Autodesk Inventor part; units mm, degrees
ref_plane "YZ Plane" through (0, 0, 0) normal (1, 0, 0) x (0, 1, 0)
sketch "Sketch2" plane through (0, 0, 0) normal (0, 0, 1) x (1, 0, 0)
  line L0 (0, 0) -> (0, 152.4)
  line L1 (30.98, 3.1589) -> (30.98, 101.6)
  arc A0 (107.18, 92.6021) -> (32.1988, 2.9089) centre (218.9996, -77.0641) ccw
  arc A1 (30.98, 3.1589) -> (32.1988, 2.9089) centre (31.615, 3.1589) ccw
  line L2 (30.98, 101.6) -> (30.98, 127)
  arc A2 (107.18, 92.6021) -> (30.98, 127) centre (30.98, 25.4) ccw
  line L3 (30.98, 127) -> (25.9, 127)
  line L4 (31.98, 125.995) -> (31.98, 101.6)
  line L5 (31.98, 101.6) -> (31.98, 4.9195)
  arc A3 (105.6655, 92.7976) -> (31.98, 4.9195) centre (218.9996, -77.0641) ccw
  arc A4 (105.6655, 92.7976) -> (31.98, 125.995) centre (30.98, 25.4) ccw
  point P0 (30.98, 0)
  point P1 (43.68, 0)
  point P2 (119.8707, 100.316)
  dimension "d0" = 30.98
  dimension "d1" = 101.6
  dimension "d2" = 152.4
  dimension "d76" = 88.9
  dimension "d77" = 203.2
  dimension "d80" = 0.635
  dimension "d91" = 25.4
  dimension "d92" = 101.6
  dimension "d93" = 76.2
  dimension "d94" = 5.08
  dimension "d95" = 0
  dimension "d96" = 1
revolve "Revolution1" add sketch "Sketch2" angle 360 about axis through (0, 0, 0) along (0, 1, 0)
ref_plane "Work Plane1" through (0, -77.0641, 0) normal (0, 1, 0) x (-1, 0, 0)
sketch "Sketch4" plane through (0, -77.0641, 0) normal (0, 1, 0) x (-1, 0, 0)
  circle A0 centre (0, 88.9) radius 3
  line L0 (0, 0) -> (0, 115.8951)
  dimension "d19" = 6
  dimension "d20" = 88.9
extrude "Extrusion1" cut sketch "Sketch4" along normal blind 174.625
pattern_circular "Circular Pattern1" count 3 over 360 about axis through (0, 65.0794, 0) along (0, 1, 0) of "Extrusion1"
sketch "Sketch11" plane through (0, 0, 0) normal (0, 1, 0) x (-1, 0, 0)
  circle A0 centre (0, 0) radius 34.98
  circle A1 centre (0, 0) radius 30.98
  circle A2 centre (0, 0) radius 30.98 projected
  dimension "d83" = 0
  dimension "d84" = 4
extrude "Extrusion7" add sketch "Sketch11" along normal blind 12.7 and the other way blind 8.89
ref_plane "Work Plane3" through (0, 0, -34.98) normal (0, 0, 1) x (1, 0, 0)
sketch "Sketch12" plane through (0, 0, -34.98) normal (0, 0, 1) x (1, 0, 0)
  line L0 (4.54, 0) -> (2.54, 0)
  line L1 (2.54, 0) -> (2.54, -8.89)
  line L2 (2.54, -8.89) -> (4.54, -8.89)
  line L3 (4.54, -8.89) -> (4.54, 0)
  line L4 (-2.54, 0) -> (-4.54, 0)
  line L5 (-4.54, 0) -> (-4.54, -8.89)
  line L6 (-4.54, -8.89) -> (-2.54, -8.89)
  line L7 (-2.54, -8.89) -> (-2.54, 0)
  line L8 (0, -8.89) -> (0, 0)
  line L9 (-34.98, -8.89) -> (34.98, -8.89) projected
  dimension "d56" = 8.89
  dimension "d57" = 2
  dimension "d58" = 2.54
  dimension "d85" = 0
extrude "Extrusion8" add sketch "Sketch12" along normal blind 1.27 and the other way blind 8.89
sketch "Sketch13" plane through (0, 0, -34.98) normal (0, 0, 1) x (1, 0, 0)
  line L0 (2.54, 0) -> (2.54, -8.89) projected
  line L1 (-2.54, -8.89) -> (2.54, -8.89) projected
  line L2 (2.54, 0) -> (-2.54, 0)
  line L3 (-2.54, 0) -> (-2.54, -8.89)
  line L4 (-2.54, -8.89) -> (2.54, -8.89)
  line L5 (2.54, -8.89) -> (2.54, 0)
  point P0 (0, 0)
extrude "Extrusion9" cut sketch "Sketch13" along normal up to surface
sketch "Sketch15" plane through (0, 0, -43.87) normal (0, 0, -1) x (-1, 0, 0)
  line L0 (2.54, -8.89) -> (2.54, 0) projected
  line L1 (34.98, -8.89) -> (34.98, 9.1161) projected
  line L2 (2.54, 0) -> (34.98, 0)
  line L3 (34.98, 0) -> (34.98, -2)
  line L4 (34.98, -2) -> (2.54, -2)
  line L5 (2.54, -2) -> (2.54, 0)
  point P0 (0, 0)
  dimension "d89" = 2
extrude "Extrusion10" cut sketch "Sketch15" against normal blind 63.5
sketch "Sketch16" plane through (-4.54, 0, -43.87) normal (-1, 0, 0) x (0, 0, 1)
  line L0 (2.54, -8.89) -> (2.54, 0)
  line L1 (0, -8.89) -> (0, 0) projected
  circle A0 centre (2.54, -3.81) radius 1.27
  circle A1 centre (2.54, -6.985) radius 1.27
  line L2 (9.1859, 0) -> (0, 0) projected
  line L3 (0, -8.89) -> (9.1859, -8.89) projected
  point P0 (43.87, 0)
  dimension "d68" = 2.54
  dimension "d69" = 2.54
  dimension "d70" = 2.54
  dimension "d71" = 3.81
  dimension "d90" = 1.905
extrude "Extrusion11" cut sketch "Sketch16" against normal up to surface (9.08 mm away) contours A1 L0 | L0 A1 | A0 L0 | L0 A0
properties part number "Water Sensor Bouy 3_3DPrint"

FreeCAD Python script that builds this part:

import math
import FreeCAD as App
import Part
import Sketcher
Q = App.Units.Quantity

doc = App.newDocument("Part")
body = doc.addObject("PartDesign::Body", "Body")

sketch1 = doc.addObject("Sketcher::SketchObject", "Sketch")
body.addObject(sketch1)
sketch1.AttachmentSupport = (doc.XY_Plane, [""])
sketch1.MapMode = "FlatFace"
sketch1.addGeometry([
    Part.LineSegment(App.Vector(30.98, 127, 0), App.Vector(30.98, 3.1589, 0)),
    Part.ArcOfCircle(Part.Circle(App.Vector(31.615, 3.1589, 0), App.Vector(0, 0, 1), 0.635), math.radians(180), math.radians(336.817994)),
    Part.ArcOfCircle(Part.Circle(App.Vector(218.9996, -77.0641, 0), App.Vector(0, 0, 1), 203.200006), math.radians(123.387136), math.radians(156.823306)),
    Part.ArcOfCircle(Part.Circle(App.Vector(30.98, 25.4, 0), App.Vector(0, 0, 1), 101.600011), math.radians(41.409629), math.radians(90)),
    Part.LineSegment(App.Vector(31.98, 4.9195, 0), App.Vector(31.98, 125.995, 0)),
    Part.ArcOfCircle(Part.Circle(App.Vector(30.98, 25.4, 0), App.Vector(0, 0, 1), 100.600002), math.radians(42.063688), math.radians(89.43045)),
    Part.ArcOfCircle(Part.Circle(App.Vector(218.9996, -77.0641, 0), App.Vector(0, 0, 1), 204.19994), math.radians(123.711772), math.radians(156.328843)),
], False)
sketch1.addConstraint([
    Sketcher.Constraint("Tangent", 0, 2, 1, 1),
    Sketcher.Constraint("Tangent", 1, 2, 2, 2),
    Sketcher.Constraint("Coincident", 2, 1, 3, 1),
    Sketcher.Constraint("Coincident", 3, 2, 0, 1),
    Sketcher.Constraint("Coincident", 4, 2, 5, 2),
    Sketcher.Constraint("Coincident", 5, 1, 6, 1),
    Sketcher.Constraint("Coincident", 6, 2, 4, 1),
    Sketcher.Constraint("Vertical", 0),
    Sketcher.Constraint("Vertical", 4),
    Sketcher.Constraint("Coincident", 5, 3, 3, 3),
    Sketcher.Constraint("Coincident", 6, 3, 2, 3),
    Sketcher.Constraint("Vertical", 5, 3, 0, 2),
    Sketcher.Constraint("Radius", 2, Q("8 in")),
    Sketcher.Constraint("Radius", 3, Q("4 in")),
    Sketcher.Constraint("DistanceY", -1, 1, 3, 3, Q("1 in")),
    Sketcher.Constraint("Radius", 1, Q("0.025 in")),
    Sketcher.Constraint("DistanceX", -1, 1, 3, 3, Q("30.98 mm")),
    Sketcher.Constraint("Radius", 5, Q("100.6 mm")),
    Sketcher.Constraint("Radius", 6, Q("204.2 mm")),
    Sketcher.Constraint("DistanceX", 3, 2, 4, 2, Q("1 mm")),
    Sketcher.Constraint("DistanceX", 4, 2, 5, 1, Q("2.901 in")),
    Sketcher.Constraint("DistanceY", 0, 2, 0, 1, Q("123.841 mm")),
])
revolution = doc.addObject("PartDesign::Revolution", "Revolution")
body.addObject(revolution)
revolution.Profile = sketch1
revolution.ReferenceAxis = (sketch1, ["V_Axis"])
revolution.Angle = 360

sketch2 = doc.addObject("Sketcher::SketchObject", "Sketch001")
body.addObject(sketch2)
sketch2.AttachmentSupport = (doc.XZ_Plane, [""])
sketch2.MapMode = "FlatFace"
sketch2.AttachmentOffset = App.Placement(App.Vector(0, 0, 77.0641), App.Rotation())
sketch2.addGeometry(Part.Circle(App.Vector(0, 88.9, 0), App.Vector(0, 0, 1), 3), False)
sketch2.addConstraint([
    Sketcher.Constraint("PointOnObject", 0, 3, -2),
    Sketcher.Constraint("DistanceY", -1, 1, 0, 3, Q("3.5 in")),
    Sketcher.Constraint("Diameter", 0, Q("6 mm")),
])
pocket1 = doc.addObject("PartDesign::Pocket", "Pocket")
body.addObject(pocket1)
pocket1.Profile = sketch2
pocket1.Length = Q("6.875 in")
doc.recompute()

polarpattern = doc.addObject("PartDesign::PolarPattern", "PolarPattern")
body.addObject(polarpattern)
polarpattern.Originals = [pocket1]
polarpattern.Axis = (doc.Y_Axis, [""])
polarpattern.Angle = 360
polarpattern.Occurrences = 3
body.Tip = polarpattern

sketch3 = doc.addObject("Sketcher::SketchObject", "Sketch002")
body.addObject(sketch3)
sketch3.AttachmentSupport = (doc.XZ_Plane, [""])
sketch3.MapMode = "FlatFace"
sketch3.addGeometry([
    Part.Circle(App.Vector(0, 0, 0), App.Vector(0, 0, 1), 34.98),
    Part.Circle(App.Vector(0, 0, 0), App.Vector(0, 0, 1), 30.98),
], False)
sketch3.addConstraint([
    Sketcher.Constraint("Coincident", 0, 3, -1, 1),
    Sketcher.Constraint("Coincident", 1, 3, -1, 1),
    Sketcher.Constraint("Diameter", 0, Q("69.96 mm")),
    Sketcher.Constraint("Diameter", 1, Q("61.96 mm")),
])
pad1 = doc.addObject("PartDesign::Pad", "Pad")
body.addObject(pad1)
pad1.Profile = sketch3
pad1.Type = "TwoLengths"
pad1.Length = Q("0.5 in")
pad1.Length2 = Q("0.35 in")
pad1.Reversed = True

sketch4 = doc.addObject("Sketcher::SketchObject", "Sketch003")
body.addObject(sketch4)
sketch4.AttachmentSupport = (doc.XY_Plane, [""])
sketch4.MapMode = "FlatFace"
sketch4.AttachmentOffset = App.Placement(App.Vector(0, 0, -34.98), App.Rotation())
sketch4.addGeometry([
    Part.LineSegment(App.Vector(4.54, -8.89, 0), App.Vector(4.54, 0, 0)),
    Part.LineSegment(App.Vector(4.54, 0, 0), App.Vector(2.54, 0, 0)),
    Part.LineSegment(App.Vector(2.54, 0, 0), App.Vector(2.54, -8.89, 0)),
    Part.LineSegment(App.Vector(2.54, -8.89, 0), App.Vector(4.54, -8.89, 0)),
    Part.LineSegment(App.Vector(-4.54, -8.89, 0), App.Vector(-2.54, -8.89, 0)),
    Part.LineSegment(App.Vector(-2.54, -8.89, 0), App.Vector(-2.54, 0, 0)),
    Part.LineSegment(App.Vector(-2.54, 0, 0), App.Vector(-4.54, 0, 0)),
    Part.LineSegment(App.Vector(-4.54, 0, 0), App.Vector(-4.54, -8.89, 0)),
], False)
sketch4.addConstraint([
    Sketcher.Constraint("Coincident", 0, 2, 1, 1),
    Sketcher.Constraint("Coincident", 1, 2, 2, 1),
    Sketcher.Constraint("Coincident", 2, 2, 3, 1),
    Sketcher.Constraint("Coincident", 3, 2, 0, 1),
    Sketcher.Constraint("Coincident", 4, 2, 5, 1),
    Sketcher.Constraint("Coincident", 5, 2, 6, 1),
    Sketcher.Constraint("Coincident", 6, 2, 7, 1),
    Sketcher.Constraint("Coincident", 7, 2, 4, 1),
    Sketcher.Constraint("Vertical", 0),
    Sketcher.Constraint("Horizontal", 1),
    Sketcher.Constraint("Vertical", 2),
    Sketcher.Constraint("Horizontal", 3),
    Sketcher.Constraint("Horizontal", 4),
    Sketcher.Constraint("Vertical", 5),
    Sketcher.Constraint("Horizontal", 6),
    Sketcher.Constraint("Vertical", 7),
    Sketcher.Constraint("Symmetric", 1, 2, 5, 2, -1, 1),
    Sketcher.Constraint("Symmetric", 0, 2, 6, 2, -2),
    Sketcher.Constraint("Horizontal", 3, 2, 4, 2),
    Sketcher.Constraint("DistanceY", 0, 1, 0, 2, Q("0.35 in")),
    Sketcher.Constraint("DistanceX", -1, 1, 1, 2, Q("0.1 in")),
    Sketcher.Constraint("DistanceX", 1, 2, 1, 1, Q("2 mm")),
])
pad2 = doc.addObject("PartDesign::Pad", "Pad001")
body.addObject(pad2)
pad2.Profile = sketch4
pad2.Type = "TwoLengths"
pad2.Length = Q("0.05 in")
pad2.Length2 = Q("0.35 in")

sketch5 = doc.addObject("Sketcher::SketchObject", "Sketch004")
body.addObject(sketch5)
sketch5.AttachmentSupport = (doc.XY_Plane, [""])
sketch5.MapMode = "FlatFace"
sketch5.AttachmentOffset = App.Placement(App.Vector(0, 0, -34.98), App.Rotation())
sketch5.addGeometry([
    Part.LineSegment(App.Vector(2.54, -8.89, 0), App.Vector(2.54, 0, 0)),
    Part.LineSegment(App.Vector(2.54, 0, 0), App.Vector(-2.54, 0, 0)),
    Part.LineSegment(App.Vector(-2.54, 0, 0), App.Vector(-2.54, -8.89, 0)),
    Part.LineSegment(App.Vector(-2.54, -8.89, 0), App.Vector(2.54, -8.89, 0)),
], False)
sketch5.addConstraint([
    Sketcher.Constraint("Coincident", 0, 2, 1, 1),
    Sketcher.Constraint("Coincident", 1, 2, 2, 1),
    Sketcher.Constraint("Coincident", 2, 2, 3, 1),
    Sketcher.Constraint("Coincident", 3, 2, 0, 1),
    Sketcher.Constraint("Vertical", 0),
    Sketcher.Constraint("Horizontal", 1),
    Sketcher.Constraint("Vertical", 2),
    Sketcher.Constraint("Horizontal", 3),
    Sketcher.Constraint("Symmetric", 0, 2, 1, 2, -1, 1),
    Sketcher.Constraint("DistanceX", 1, 2, 1, 1, Q("0.2 in")),
    Sketcher.Constraint("DistanceY", 0, 1, 0, 2, Q("0.35 in")),
])
pocket2 = doc.addObject("PartDesign::Pocket", "Pocket001")
body.addObject(pocket2)
pocket2.Profile = sketch5
pocket2.Type = "UpToFirst"
pocket2.Reversed = True

sketch6 = doc.addObject("Sketcher::SketchObject", "Sketch005")
body.addObject(sketch6)
sketch6.AttachmentSupport = (doc.XY_Plane, [""])
sketch6.MapMode = "FlatFace"
sketch6.AttachmentOffset = App.Placement(App.Vector(0, 0, -43.87), App.Rotation())
sketch6.addGeometry([
    Part.LineSegment(App.Vector(-2.54, 0, 0), App.Vector(-2.54, -2, 0)),
    Part.LineSegment(App.Vector(-2.54, -2, 0), App.Vector(-34.98, -2, 0)),
    Part.LineSegment(App.Vector(-34.98, -2, 0), App.Vector(-34.98, 0, 0)),
    Part.LineSegment(App.Vector(-34.98, 0, 0), App.Vector(-2.54, 0, 0)),
], False)
sketch6.addConstraint([
    Sketcher.Constraint("Coincident", 0, 2, 1, 1),
    Sketcher.Constraint("Coincident", 1, 2, 2, 1),
    Sketcher.Constraint("Coincident", 2, 2, 3, 1),
    Sketcher.Constraint("Coincident", 3, 2, 0, 1),
    Sketcher.Constraint("Vertical", 0),
    Sketcher.Constraint("Horizontal", 1),
    Sketcher.Constraint("Vertical", 2),
    Sketcher.Constraint("Horizontal", 3),
    Sketcher.Constraint("PointOnObject", 2, 2, -1),
    Sketcher.Constraint("DistanceY", 0, 2, 0, 1, Q("2 mm")),
    Sketcher.Constraint("DistanceX", 0, 2, -1, 1, Q("0.1 in")),
    Sketcher.Constraint("DistanceX", 1, 2, 1, 1, Q("32.44 mm")),
])
pocket3 = doc.addObject("PartDesign::Pocket", "Pocket002")
body.addObject(pocket3)
pocket3.Profile = sketch6
pocket3.Length = Q("2.5 in")
pocket3.Reversed = True

sketch7 = doc.addObject("Sketcher::SketchObject", "Sketch006")
body.addObject(sketch7)
sketch7.AttachmentSupport = (doc.YZ_Plane, [""])
sketch7.MapMode = "FlatFace"
sketch7.AttachmentOffset = App.Placement(App.Vector(0, 0, -4.54), App.Rotation())
sketch7.addGeometry([
    Part.Circle(App.Vector(-6.985, -41.33, 0), App.Vector(0, 0, 1), 1.27),
    Part.Circle(App.Vector(-3.81, -41.33, 0), App.Vector(0, 0, 1), 1.27),
], False)
sketch7.addConstraint([
    Sketcher.Constraint("Equal", 0, 1),
    Sketcher.Constraint("Horizontal", 0, 3, 1, 3),
    Sketcher.Constraint("Diameter", 0, Q("0.1 in")),
    Sketcher.Constraint("DistanceX", 1, 3, -1, 1, Q("0.15 in")),
    Sketcher.Constraint("DistanceX", 0, 3, -1, 1, Q("0.275 in")),
    Sketcher.Constraint("DistanceY", 0, 3, -1, 1, Q("41.33 mm")),
])
pocket4 = doc.addObject("PartDesign::Pocket", "Pocket003")
body.addObject(pocket4)
pocket4.Profile = sketch7
pocket4.Length = 9.08
pocket4.Reversed = True

doc.recompute()
